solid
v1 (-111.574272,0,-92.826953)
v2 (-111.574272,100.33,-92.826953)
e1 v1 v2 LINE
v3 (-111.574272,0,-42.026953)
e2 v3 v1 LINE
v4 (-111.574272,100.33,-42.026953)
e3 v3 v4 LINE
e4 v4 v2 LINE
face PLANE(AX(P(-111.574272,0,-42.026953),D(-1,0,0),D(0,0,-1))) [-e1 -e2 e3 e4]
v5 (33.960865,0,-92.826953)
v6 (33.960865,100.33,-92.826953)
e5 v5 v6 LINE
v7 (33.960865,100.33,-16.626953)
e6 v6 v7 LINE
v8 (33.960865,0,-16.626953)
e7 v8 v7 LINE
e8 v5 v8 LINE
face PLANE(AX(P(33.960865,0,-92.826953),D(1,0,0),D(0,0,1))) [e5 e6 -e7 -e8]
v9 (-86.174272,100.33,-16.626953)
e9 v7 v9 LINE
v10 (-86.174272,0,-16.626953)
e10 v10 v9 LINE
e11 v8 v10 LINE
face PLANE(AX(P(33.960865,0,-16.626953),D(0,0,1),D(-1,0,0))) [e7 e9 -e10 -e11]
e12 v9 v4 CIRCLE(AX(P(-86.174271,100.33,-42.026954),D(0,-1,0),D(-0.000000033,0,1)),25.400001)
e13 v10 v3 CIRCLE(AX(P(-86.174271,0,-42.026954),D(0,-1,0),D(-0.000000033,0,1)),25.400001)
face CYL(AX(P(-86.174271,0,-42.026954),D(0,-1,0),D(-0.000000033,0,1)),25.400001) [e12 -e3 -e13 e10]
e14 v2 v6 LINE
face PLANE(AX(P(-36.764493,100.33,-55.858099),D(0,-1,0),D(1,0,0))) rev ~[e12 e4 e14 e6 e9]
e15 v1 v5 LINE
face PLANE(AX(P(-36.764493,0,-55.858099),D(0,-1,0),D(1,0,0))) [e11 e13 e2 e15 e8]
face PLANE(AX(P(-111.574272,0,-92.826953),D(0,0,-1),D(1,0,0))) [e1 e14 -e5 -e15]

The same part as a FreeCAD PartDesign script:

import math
import FreeCAD as App
import Part
import Sketcher

V = App.Vector
Q = App.Units.Quantity

doc = App.newDocument("Part")
body = doc.addObject("PartDesign::Body", "Body")

sketch1 = doc.addObject("Sketcher::SketchObject", "Sketch")
body.addObject(sketch1)
sketch1.AttachmentSupport = (doc.XZ_Plane, [""])
sketch1.MapMode = "FlatFace"
sketch1.addGeometry([
    Part.LineSegment(V(33.960865, -16.626953, 0), V(-86.174272, -16.626953, 0)),
    Part.ArcOfCircle(Part.Circle(V(-86.174271, -42.026954, 0), V(0, 0, 1), 25.400001), math.radians(90.000002), math.radians(179.999998)),
    Part.LineSegment(V(-111.574272, -42.026953, 0), V(-111.574272, -92.826953, 0)),
    Part.LineSegment(V(-111.574272, -92.826953, 0), V(33.960865, -92.826953, 0)),
    Part.LineSegment(V(33.960865, -92.826953, 0), V(33.960865, -16.626953, 0)),
], False)
sketch1.addConstraint([
    Sketcher.Constraint("Tangent", 0, 2, 1, 1),
    Sketcher.Constraint("Tangent", 1, 2, 2, 1),
    Sketcher.Constraint("Coincident", 2, 2, 3, 1),
    Sketcher.Constraint("Coincident", 3, 2, 4, 1),
    Sketcher.Constraint("Coincident", 4, 2, 0, 1),
    Sketcher.Constraint("Horizontal", 0),
    Sketcher.Constraint("Vertical", 2),
    Sketcher.Constraint("Horizontal", 3),
    Sketcher.Constraint("Vertical", 4),
    Sketcher.Constraint("Radius", 1, Q("1 in")),
    Sketcher.Constraint("DistanceY", 2, 2, 2, 1, Q("2 in")),
    Sketcher.Constraint("DistanceX", 0, 2, 0, 1, Q("120.135137 mm")),
    Sketcher.Constraint("DistanceX", 1, 3, -1, 1, Q("86.174271 mm")),
    Sketcher.Constraint("DistanceY", 1, 3, -1, 1, Q("42.026954 mm")),
])
pad1 = doc.addObject("PartDesign::Pad", "Pad")
body.addObject(pad1)
pad1.Profile = sketch1
pad1.Length = Q("3.95 in")
pad1.Reversed = True

doc.recompute()
